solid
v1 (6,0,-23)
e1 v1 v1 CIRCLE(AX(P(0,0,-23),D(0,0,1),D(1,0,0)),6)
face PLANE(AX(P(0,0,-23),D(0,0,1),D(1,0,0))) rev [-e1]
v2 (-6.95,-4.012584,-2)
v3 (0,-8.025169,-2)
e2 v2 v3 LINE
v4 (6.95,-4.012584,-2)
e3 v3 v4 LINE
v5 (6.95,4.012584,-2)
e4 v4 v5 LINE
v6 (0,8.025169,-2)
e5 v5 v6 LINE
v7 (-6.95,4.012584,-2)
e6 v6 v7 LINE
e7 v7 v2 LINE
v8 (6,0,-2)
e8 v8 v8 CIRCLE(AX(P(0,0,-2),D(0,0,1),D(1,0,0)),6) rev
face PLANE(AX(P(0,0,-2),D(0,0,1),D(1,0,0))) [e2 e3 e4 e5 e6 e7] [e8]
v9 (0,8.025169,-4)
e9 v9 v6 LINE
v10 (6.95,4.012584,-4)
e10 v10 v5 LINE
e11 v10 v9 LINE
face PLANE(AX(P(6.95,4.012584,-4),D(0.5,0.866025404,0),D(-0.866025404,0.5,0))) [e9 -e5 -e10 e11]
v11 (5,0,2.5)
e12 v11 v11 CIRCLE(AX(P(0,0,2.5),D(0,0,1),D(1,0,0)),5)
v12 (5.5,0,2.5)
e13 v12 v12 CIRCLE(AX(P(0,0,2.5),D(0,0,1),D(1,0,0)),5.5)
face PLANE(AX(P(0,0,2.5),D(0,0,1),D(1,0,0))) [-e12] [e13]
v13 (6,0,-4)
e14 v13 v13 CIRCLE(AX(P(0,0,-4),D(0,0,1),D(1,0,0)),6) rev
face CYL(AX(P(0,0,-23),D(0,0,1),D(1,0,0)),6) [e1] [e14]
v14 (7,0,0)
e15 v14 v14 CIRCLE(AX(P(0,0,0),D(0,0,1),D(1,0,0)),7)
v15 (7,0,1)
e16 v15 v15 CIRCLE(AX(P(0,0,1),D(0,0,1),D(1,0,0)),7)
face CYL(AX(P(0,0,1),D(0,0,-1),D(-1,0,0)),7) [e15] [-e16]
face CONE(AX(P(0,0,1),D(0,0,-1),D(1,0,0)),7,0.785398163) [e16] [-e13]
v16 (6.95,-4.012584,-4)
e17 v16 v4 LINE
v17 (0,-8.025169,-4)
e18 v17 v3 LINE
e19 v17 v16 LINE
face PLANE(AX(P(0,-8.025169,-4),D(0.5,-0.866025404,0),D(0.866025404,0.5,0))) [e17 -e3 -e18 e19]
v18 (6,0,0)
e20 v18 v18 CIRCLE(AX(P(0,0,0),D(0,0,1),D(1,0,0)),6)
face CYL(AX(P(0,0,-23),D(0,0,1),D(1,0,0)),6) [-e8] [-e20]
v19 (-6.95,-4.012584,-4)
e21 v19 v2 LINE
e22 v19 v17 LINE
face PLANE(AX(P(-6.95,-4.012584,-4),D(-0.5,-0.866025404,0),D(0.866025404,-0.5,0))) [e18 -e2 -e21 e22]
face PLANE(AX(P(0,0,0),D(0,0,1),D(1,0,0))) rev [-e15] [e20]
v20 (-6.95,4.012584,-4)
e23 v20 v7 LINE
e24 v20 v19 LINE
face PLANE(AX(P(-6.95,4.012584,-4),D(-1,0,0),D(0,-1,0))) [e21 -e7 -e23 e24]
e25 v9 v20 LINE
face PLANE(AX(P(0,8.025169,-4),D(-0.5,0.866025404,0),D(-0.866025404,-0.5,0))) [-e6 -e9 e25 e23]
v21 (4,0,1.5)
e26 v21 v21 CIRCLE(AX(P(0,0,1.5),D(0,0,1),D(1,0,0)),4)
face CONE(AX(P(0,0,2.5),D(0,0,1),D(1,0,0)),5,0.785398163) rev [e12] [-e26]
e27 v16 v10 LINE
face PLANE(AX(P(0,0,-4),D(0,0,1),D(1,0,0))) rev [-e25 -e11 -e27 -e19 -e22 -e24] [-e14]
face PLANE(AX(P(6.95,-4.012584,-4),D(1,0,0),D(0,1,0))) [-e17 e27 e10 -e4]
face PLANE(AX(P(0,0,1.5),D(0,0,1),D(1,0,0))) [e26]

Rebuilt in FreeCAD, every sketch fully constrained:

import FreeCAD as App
import Part
import Sketcher
from FreeCAD import Vector
Q = App.Units.Quantity


def faces_at(feature, points):
    """Names of the faces that lie closest to the given points."""
    faces = feature.Shape.Faces
    near = lambda p: min(range(len(faces)), key=lambda i: faces[i].distToShape(Part.Vertex(*p))[0])
    return sorted({f"Face{near(p) + 1}" for p in points})

doc = App.newDocument("Part")
body = doc.addObject("PartDesign::Body", "Body")

# Sketch on XY plane
sketch1 = body.newObject("Sketcher::SketchObject", "Sketch")
sketch1.AttachmentSupport = (doc.getObject("XY_Plane"), [""])
sketch1.MapMode = "FlatFace"
sketch1.addGeometry(Part.Circle(Vector(0, 0, 0), Vector(0, 0, 1), 7), False)
sketch1.addConstraint([
    Sketcher.Constraint("Coincident", 0, 3, -1, 1),
    Sketcher.Constraint("Diameter", 0, Q("14 mm")),
])
pad1 = body.newObject("PartDesign::Pad", "Pad")
pad1.Profile = sketch1
pad1.Length = 1

# Sketch on XY plane
sketch2 = body.newObject("Sketcher::SketchObject", "Sketch001")
sketch2.AttachmentSupport = (doc.getObject("XY_Plane"), [""])
sketch2.MapMode = "FlatFace"
sketch2.AttachmentOffset = App.Placement(Vector(0, 0, 1), App.Rotation())
sketch2.addGeometry(Part.Circle(Vector(0, 0, 0), Vector(0, 0, 1), 7), False)
sketch2.addConstraint([
    Sketcher.Constraint("Coincident", 0, 3, -1, 1),
    Sketcher.Constraint("Diameter", 0, Q("14 mm")),
])
pad2 = body.newObject("PartDesign::Pad", "Pad001")
pad2.Profile = sketch2
pad2.Length = 1.5
pad2.TaperAngle = -45
body2 = doc.addObject("PartDesign::Body", "Body001")

# Sketch on XY plane
sketch3 = body2.newObject("Sketcher::SketchObject", "Sketch002")
sketch3.AttachmentSupport = (doc.getObject("XY_Plane001"), [""])
sketch3.MapMode = "FlatFace"
sketch3.AttachmentOffset = App.Placement(Vector(0, 0, 2.5), App.Rotation())
sketch3.addGeometry(Part.Circle(Vector(0, 0, 0), Vector(0, 0, 1), 5), False)
sketch3.addConstraint([
    Sketcher.Constraint("Coincident", 0, 3, -1, 1),
    Sketcher.Constraint("Diameter", 0, Q("10 mm")),
])
pad3 = body2.newObject("PartDesign::Pad", "Pad002")
pad3.Profile = sketch3
pad3.Length = 1
pad3.Reversed = True
doc.recompute()

datumplane = body2.newObject("PartDesign::Plane", "DatumPlane")
datumplane.AttachmentSupport = (doc.getObject("XY_Plane001"), [""])
datumplane.MapMode = "FlatFace"
datumplane.AttachmentOffset = App.Placement(Vector(0, 0, 2.5), App.Rotation())
draft = body2.newObject("PartDesign::Draft", "Draft")
draft.Base = (pad3, faces_at(pad3, [(-5, 0, 2)]))
draft.NeutralPlane = (datumplane, [""])
draft.Angle = 45
draft.Reversed = True
doc.recompute()

boolean = body.newObject("PartDesign::Boolean", "Boolean")
boolean.Type = "Cut"
boolean.addObjects([body2])

# Sketch on XY plane
sketch4 = body.newObject("Sketcher::SketchObject", "Sketch003")
sketch4.AttachmentSupport = (doc.getObject("XY_Plane"), [""])
sketch4.MapMode = "FlatFace"
sketch4.addGeometry(Part.Circle(Vector(0, 0, 0), Vector(0, 0, 1), 6), False)
sketch4.addConstraint([
    Sketcher.Constraint("Coincident", 0, 3, -1, 1),
    Sketcher.Constraint("Diameter", 0, Q("12 mm")),
])
pad4 = body.newObject("PartDesign::Pad", "Pad003")
pad4.Profile = sketch4
pad4.Length = 23
pad4.Reversed = True

# Sketch on XY plane
sketch5 = body.newObject("Sketcher::SketchObject", "Sketch004")
sketch5.AttachmentSupport = (doc.getObject("XY_Plane"), [""])
sketch5.MapMode = "FlatFace"
sketch5.AttachmentOffset = App.Placement(Vector(0, 0, -2), App.Rotation())
sketch5.addGeometry([
    Part.LineSegment(Vector(0, 8, 0), Vector(-7, 4, 0)),  # 0
    Part.LineSegment(Vector(-7, 4, 0), Vector(-7, -4, 0)),  # 1
    Part.LineSegment(Vector(-7, -4, 0), Vector(0, -8, 0)),  # 2
    Part.LineSegment(Vector(0, -8, 0), Vector(7, -4, 0)),  # 3
    Part.LineSegment(Vector(7, -4, 0), Vector(7, 4, 0)),  # 4
    Part.LineSegment(Vector(7, 4, 0), Vector(0, 8, 0)),  # 5
], False)
sketch5.addConstraint([
    Sketcher.Constraint("Coincident", 0, 2, 1, 1),
    Sketcher.Constraint("Coincident", 1, 2, 2, 1),
    Sketcher.Constraint("Coincident", 2, 2, 3, 1),
    Sketcher.Constraint("Coincident", 3, 2, 4, 1),
    Sketcher.Constraint("Coincident", 4, 2, 5, 1),
    Sketcher.Constraint("Coincident", 5, 2, 0, 1),
    Sketcher.Constraint("Vertical", 1),
    Sketcher.Constraint("Vertical", 4),
    Sketcher.Constraint("Symmetric", 0, 2, 3, 2, -1, 1),
    Sketcher.Constraint("Symmetric", 2, 2, 5, 2, -1, 1),
    Sketcher.Constraint("PointOnObject", 2, 2, -2),
    Sketcher.Constraint("Parallel", 2, 5),
    Sketcher.Constraint("Horizontal", 1, 2, 3, 2),
    Sketcher.Constraint("Angle", 0, Q("-150 deg")),
    Sketcher.Constraint("DistanceX", 1, 2, 3, 2, Q("13.9 mm")),
    Sketcher.Constraint("DistanceY", 1, 2, 1, 1, Q("8.025169 mm")),
])
pad5 = body.newObject("PartDesign::Pad", "Pad004")
pad5.Profile = sketch5
pad5.Length = 2
pad5.Reversed = True

doc.recompute()
